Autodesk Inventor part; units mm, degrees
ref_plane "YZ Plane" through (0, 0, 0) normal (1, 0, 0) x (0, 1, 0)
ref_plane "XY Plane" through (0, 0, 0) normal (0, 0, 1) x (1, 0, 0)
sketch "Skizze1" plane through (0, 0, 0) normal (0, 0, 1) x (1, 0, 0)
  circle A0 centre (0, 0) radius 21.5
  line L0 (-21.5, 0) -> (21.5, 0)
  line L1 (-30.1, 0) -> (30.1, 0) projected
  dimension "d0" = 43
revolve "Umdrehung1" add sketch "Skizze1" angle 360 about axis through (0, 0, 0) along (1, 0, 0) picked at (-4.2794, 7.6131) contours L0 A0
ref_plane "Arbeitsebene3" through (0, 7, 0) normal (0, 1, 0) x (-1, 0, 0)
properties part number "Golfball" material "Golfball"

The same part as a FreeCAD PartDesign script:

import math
import FreeCAD as App
import Part
import Sketcher

doc = App.newDocument("Part")
body = doc.addObject("PartDesign::Body", "Body")

# Sketch on XY plane
sketch1 = body.newObject("Sketcher::SketchObject", "Sketch")
sketch1.AttachmentSupport = (doc.getObject("XY_Plane"), [""])
sketch1.MapMode = "FlatFace"
sketch1.addGeometry([
    Part.LineSegment(App.Vector(-22, 0, 0), App.Vector(22, 0, 0)),
    Part.ArcOfCircle(Part.Circle(App.Vector(0, 0, 0), App.Vector(0, 0, 1), 22), math.radians(0), math.radians(180)),
], False)
sketch1.addConstraint([
    Sketcher.Constraint("Coincident", 0, 1, 1, 2),
    Sketcher.Constraint("Coincident", 1, 1, 0, 2),
    Sketcher.Constraint("Horizontal", 0),
    Sketcher.Constraint("Coincident", 1, 3, -1, 1),
    Sketcher.Constraint("PointOnObject", 0, 1, -1),
    Sketcher.Constraint("Radius", 1, 21.5),
])
revolution = body.newObject("PartDesign::Revolution", "Revolution")
revolution.Profile = sketch1
revolution.ReferenceAxis = (sketch1, ["H_Axis"])
revolution.Angle = 360

doc.recompute()
